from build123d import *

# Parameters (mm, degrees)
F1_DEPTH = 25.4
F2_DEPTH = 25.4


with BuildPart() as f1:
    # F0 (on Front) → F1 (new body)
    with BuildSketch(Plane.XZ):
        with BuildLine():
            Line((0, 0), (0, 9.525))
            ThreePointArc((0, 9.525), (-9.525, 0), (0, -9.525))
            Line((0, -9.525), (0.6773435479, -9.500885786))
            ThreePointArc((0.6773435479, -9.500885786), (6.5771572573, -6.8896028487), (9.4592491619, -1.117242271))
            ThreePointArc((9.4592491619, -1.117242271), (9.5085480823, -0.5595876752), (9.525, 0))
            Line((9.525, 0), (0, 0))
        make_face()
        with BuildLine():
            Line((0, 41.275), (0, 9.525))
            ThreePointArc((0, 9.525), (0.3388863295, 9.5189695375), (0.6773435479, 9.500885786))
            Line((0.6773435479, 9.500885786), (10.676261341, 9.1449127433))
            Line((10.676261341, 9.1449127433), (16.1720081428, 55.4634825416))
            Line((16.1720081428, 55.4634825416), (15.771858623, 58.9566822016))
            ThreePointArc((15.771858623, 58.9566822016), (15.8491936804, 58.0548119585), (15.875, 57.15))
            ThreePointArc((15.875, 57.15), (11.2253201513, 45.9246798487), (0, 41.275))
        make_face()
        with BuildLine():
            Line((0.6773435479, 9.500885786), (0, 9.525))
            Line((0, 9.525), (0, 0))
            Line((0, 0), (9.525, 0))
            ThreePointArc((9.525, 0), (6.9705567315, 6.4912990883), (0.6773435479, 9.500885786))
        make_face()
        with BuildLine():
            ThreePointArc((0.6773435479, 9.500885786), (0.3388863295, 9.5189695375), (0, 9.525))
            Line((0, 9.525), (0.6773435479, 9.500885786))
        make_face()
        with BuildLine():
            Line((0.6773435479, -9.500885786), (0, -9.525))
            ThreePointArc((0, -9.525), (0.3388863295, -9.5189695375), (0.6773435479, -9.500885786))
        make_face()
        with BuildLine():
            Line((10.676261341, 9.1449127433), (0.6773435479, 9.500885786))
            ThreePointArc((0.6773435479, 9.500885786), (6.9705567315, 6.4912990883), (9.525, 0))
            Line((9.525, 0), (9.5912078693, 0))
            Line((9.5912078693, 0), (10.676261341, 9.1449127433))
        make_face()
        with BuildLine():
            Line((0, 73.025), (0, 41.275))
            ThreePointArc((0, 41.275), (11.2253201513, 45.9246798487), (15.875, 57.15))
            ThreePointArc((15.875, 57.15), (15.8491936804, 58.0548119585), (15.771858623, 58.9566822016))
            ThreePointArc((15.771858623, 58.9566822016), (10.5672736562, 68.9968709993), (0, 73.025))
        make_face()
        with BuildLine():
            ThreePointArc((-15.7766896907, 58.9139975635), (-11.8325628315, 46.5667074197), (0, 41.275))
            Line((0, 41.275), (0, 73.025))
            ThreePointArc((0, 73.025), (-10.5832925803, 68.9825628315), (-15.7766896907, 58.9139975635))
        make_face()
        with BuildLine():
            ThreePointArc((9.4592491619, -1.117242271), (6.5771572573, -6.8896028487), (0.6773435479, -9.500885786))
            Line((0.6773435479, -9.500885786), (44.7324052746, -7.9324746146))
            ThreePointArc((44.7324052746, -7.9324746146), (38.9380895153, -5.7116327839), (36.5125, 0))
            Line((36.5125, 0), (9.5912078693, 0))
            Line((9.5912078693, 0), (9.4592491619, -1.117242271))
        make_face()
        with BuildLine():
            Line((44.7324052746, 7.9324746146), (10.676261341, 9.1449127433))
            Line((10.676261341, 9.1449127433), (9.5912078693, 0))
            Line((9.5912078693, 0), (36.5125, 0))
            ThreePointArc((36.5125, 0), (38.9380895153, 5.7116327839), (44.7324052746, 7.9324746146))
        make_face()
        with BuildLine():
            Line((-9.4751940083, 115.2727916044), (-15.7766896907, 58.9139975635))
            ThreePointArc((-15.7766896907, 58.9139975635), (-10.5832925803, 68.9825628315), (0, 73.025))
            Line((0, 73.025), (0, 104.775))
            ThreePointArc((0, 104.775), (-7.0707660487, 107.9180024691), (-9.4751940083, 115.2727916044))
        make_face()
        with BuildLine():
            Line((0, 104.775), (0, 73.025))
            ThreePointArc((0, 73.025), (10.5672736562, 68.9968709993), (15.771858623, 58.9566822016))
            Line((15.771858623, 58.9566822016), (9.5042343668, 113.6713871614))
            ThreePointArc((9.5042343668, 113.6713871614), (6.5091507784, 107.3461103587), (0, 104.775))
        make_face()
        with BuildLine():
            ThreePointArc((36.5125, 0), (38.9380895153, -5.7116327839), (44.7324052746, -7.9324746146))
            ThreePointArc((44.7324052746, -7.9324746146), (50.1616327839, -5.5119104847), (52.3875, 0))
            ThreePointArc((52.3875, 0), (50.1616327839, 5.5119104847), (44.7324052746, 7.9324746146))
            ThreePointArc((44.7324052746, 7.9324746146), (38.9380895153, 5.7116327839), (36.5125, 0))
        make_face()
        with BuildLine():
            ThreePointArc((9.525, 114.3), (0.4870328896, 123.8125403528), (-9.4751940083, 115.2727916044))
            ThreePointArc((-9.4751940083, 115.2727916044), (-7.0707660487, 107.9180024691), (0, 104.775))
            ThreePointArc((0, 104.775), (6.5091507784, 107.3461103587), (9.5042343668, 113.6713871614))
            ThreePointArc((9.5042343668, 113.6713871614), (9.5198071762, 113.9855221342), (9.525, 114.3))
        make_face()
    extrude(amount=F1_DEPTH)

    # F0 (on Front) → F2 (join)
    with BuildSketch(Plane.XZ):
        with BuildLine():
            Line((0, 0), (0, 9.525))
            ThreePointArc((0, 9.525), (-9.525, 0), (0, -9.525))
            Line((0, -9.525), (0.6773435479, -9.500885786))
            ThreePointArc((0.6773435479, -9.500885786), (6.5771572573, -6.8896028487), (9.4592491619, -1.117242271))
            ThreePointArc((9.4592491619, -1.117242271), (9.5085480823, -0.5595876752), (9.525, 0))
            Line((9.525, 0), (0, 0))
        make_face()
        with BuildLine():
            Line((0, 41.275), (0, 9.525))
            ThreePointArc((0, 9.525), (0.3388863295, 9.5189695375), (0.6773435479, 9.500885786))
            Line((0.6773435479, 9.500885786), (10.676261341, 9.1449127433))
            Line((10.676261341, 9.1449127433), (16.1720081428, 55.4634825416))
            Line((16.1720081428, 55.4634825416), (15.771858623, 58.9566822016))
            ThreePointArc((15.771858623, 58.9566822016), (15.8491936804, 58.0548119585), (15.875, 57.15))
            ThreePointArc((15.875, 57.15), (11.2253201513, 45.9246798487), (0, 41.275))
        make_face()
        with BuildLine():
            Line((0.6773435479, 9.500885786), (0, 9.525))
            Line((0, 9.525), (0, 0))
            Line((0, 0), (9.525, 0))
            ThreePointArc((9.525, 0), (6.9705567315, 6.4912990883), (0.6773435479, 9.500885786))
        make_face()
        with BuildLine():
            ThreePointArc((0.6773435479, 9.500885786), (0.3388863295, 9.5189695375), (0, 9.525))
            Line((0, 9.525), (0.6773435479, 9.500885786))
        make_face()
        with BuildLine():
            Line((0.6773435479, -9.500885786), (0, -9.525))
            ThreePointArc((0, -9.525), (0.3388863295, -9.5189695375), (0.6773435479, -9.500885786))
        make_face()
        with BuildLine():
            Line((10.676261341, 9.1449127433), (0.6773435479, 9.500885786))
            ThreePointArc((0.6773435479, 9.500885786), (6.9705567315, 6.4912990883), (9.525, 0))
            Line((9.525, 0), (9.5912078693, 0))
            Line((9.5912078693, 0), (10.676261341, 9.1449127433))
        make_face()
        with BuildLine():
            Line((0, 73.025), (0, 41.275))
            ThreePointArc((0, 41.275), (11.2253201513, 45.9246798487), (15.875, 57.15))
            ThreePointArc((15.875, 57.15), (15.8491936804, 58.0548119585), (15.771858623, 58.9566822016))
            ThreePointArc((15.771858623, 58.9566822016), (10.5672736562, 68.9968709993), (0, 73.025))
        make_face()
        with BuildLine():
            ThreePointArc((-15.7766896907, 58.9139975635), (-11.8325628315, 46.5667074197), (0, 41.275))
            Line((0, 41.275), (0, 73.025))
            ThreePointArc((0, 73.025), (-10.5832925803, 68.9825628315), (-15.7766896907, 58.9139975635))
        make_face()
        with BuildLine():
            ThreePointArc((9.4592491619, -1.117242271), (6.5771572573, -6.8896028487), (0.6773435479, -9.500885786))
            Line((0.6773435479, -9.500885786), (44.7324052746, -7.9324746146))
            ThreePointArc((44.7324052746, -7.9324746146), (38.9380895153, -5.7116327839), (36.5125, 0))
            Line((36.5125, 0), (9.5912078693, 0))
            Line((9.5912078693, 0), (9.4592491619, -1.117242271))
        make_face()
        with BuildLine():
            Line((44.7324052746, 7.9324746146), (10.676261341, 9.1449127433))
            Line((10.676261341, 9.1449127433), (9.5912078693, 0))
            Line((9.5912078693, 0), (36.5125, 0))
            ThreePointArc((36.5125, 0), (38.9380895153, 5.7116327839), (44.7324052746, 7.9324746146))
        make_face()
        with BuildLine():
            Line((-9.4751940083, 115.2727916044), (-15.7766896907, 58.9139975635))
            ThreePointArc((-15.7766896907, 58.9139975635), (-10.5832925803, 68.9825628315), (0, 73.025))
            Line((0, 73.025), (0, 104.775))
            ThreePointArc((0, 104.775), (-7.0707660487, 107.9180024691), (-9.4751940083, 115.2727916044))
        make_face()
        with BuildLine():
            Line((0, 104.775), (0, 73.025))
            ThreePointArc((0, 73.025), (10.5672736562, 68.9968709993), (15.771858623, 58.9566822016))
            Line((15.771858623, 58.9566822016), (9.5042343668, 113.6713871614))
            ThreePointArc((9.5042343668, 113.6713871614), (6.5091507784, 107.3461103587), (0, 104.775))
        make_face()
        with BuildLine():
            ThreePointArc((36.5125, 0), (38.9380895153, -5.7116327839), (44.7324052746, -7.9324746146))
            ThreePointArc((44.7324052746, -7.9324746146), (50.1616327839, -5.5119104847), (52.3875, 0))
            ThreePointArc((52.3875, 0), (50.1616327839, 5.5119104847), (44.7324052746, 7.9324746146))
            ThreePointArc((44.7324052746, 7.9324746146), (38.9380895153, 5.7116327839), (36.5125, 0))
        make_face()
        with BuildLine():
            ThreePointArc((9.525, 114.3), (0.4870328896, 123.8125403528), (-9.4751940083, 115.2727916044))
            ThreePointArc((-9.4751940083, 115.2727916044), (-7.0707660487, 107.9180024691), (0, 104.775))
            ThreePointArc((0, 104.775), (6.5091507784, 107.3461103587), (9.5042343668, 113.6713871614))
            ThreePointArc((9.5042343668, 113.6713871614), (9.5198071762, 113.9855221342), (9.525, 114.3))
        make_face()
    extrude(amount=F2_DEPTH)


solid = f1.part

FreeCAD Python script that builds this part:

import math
import FreeCAD as App
import Part
import Sketcher
Q = App.Units.Quantity

doc = App.newDocument("Part")
body = doc.addObject("PartDesign::Body", "Body")

# Sketch on XZ plane
sketch1 = body.newObject("Sketcher::SketchObject", "Sketch")
sketch1.AttachmentSupport = (doc.getObject("XZ_Plane"), [""])
sketch1.MapMode = "FlatFace"
sketch1.addGeometry([
    Part.LineSegment(App.Vector(44.732405, 7.932475, 0), App.Vector(10.676261, 9.144913, 0)),  # 0
    Part.LineSegment(App.Vector(10.676261, 9.144913, 0), App.Vector(16.172008, 55.463483, 0)),  # 1
    Part.LineSegment(App.Vector(16.172008, 55.463483, 0), App.Vector(15.771859, 58.956682, 0)),  # 2
    Part.LineSegment(App.Vector(15.771859, 58.956682, 0), App.Vector(9.504234, 113.671387, 0)),  # 3
    Part.ArcOfCircle(Part.Circle(App.Vector(0, 114.3, 0), App.Vector(0, 0, 1), 9.525), math.radians(-3.784048), math.radians(0)),  # 4
    Part.ArcOfCircle(Part.Circle(App.Vector(0, 114.3, 0), App.Vector(0, 0, 1), 9.525), math.radians(0), math.radians(174.138141)),  # 5
    Part.LineSegment(App.Vector(-9.475194, 115.272792, 0), App.Vector(-15.77669, 58.913998, 0)),  # 6
    Part.ArcOfCircle(Part.Circle(App.Vector(0, 57.15, 0), App.Vector(0, 0, 1), 15.875), math.radians(173.620235), math.radians(270)),  # 7
    Part.LineSegment(App.Vector(0, 41.275, 0), App.Vector(0, 9.525, 0)),  # 8
    Part.ArcOfCircle(Part.Circle(App.Vector(0, 0, 0), App.Vector(0, 0, 1), 9.525), math.radians(90), math.radians(270)),  # 9
    Part.ArcOfCircle(Part.Circle(App.Vector(0, 0, 0), App.Vector(0, 0, 1), 9.525), math.radians(-90), math.radians(-85.92213)),  # 10
    Part.LineSegment(App.Vector(0.677344, -9.500886, 0), App.Vector(44.732405, -7.932475, 0)),  # 11
    Part.ArcOfCircle(Part.Circle(App.Vector(44.45, 0, 0), App.Vector(0, 0, 1), 7.9375), math.radians(-87.961065), math.radians(0)),  # 12
    Part.ArcOfCircle(Part.Circle(App.Vector(44.45, 0, 0), App.Vector(0, 0, 1), 7.9375), math.radians(0), math.radians(87.961065)),  # 13
    Part.LineSegment(App.Vector(9.525, 0, 0), App.Vector(9.591208, 0, 0)),  # 14
    Part.LineSegment(App.Vector(9.591208, 0, 0), App.Vector(9.459249, -1.117242, 0)),  # 15
    Part.ArcOfCircle(Part.Circle(App.Vector(0, 0, 0), App.Vector(0, 0, 1), 9.525), math.radians(-6.73606), math.radians(0)),  # 16
], False)
sketch1.addConstraint([
    Sketcher.Constraint("Coincident", 0, 2, 1, 1),
    Sketcher.Constraint("Coincident", 1, 2, 2, 1),
    Sketcher.Constraint("Coincident", 2, 2, 3, 1),
    Sketcher.Constraint("Coincident", 3, 2, 4, 1),
    Sketcher.Constraint("Coincident", 4, 2, 5, 1),
    Sketcher.Constraint("Coincident", 5, 2, 6, 1),
    Sketcher.Constraint("Coincident", 6, 2, 7, 1),
    Sketcher.Constraint("Coincident", 7, 2, 8, 1),
    Sketcher.Constraint("Coincident", 8, 2, 9, 1),
    Sketcher.Constraint("Coincident", 9, 2, 10, 1),
    Sketcher.Constraint("Coincident", 10, 2, 11, 1),
    Sketcher.Constraint("Coincident", 11, 2, 12, 1),
    Sketcher.Constraint("Coincident", 12, 2, 13, 1),
    Sketcher.Constraint("Coincident", 13, 2, 0, 1),
    Sketcher.Constraint("Coincident", 14, 2, 15, 1),
    Sketcher.Constraint("Coincident", 15, 2, 16, 1),
    Sketcher.Constraint("Coincident", 16, 2, 14, 1),
    Sketcher.Constraint("Vertical", 8),
    Sketcher.Constraint("Horizontal", 14),
    Sketcher.Constraint("Coincident", 9, 3, -1, 1),
    Sketcher.Constraint("Coincident", 10, 3, -1, 1),
    Sketcher.Constraint("Coincident", 16, 3, -1, 1),
    Sketcher.Constraint("Coincident", 5, 3, 4, 3),
    Sketcher.Constraint("Coincident", 13, 3, 12, 3),
    Sketcher.Constraint("PointOnObject", 4, 3, -2),
    Sketcher.Constraint("PointOnObject", 7, 3, -2),
    Sketcher.Constraint("PointOnObject", 12, 3, -1),
    Sketcher.Constraint("PointOnObject", 7, 2, -2),
    Sketcher.Constraint("PointOnObject", 9, 2, -2),
    Sketcher.Constraint("PointOnObject", 12, 2, -1),
    Sketcher.Constraint("PointOnObject", 14, 2, -1),
    Sketcher.Constraint("Radius", 4, Q("0.375 in")),
    Sketcher.Constraint("Radius", 7, Q("0.625 in")),
    Sketcher.Constraint("Radius", 9, Q("0.375 in")),
    Sketcher.Constraint("Radius", 12, Q("0.3125 in")),
    Sketcher.Constraint("Radius", 16, Q("0.375 in")),
    Sketcher.Constraint("DistanceY", 8, 2, 8, 1, Q("1.25 in")),
    Sketcher.Constraint("DistanceY", -1, 1, 4, 3, Q("4.5 in")),
    Sketcher.Constraint("DistanceY", -1, 1, 4, 2, Q("4.5 in")),
    Sketcher.Constraint("DistanceX", -1, 1, 12, 3, Q("1.75 in")),
    Sketcher.Constraint("DistanceY", 1, 2, 2, 2, 3.4932),
    Sketcher.Constraint("Distance", 0, 34.077719),
    Sketcher.Constraint("Distance", 1, 46.643468),
    Sketcher.Constraint("Distance", 11, 44.082972),
    Sketcher.Constraint("Distance", 15, 1.125008),
    Sketcher.Constraint("DistanceX", 14, 1, 14, 2, 0.066208),
    Sketcher.Constraint("DistanceX", -1, 1, 0, 2, 10.676261),
    Sketcher.Constraint("DistanceX", -1, 1, 1, 2, 16.172008),
    Sketcher.Constraint("DistanceX", -1, 1, 2, 2, 15.771859),
    Sketcher.Constraint("DistanceY", -1, 1, 5, 2, 115.272792),
    Sketcher.Constraint("DistanceX", 6, 2, -1, 1, 15.77669),
    Sketcher.Constraint("DistanceX", 5, 2, 3, 2, 18.979428),
    Sketcher.Constraint("DistanceY", 10, 2, 11, 2, 1.568411),
    Sketcher.Constraint("DistanceY", 13, 2, 0, 2, 1.212438),
])
pad1 = body.newObject("PartDesign::Pad", "Pad")
pad1.Profile = sketch1
pad1.Length = Q("1 in")

# Sketch on XZ plane
sketch2 = body.newObject("Sketcher::SketchObject", "Sketch001")
sketch2.AttachmentSupport = (doc.getObject("XZ_Plane"), [""])
sketch2.MapMode = "FlatFace"
sketch2.addGeometry([
    Part.LineSegment(App.Vector(44.732405, 7.932475, 0), App.Vector(10.676261, 9.144913, 0)),  # 0
    Part.LineSegment(App.Vector(10.676261, 9.144913, 0), App.Vector(16.172008, 55.463483, 0)),  # 1
    Part.LineSegment(App.Vector(16.172008, 55.463483, 0), App.Vector(15.771859, 58.956682, 0)),  # 2
    Part.LineSegment(App.Vector(15.771859, 58.956682, 0), App.Vector(9.504234, 113.671387, 0)),  # 3
    Part.ArcOfCircle(Part.Circle(App.Vector(0, 114.3, 0), App.Vector(0, 0, 1), 9.525), math.radians(-3.784048), math.radians(0)),  # 4
    Part.ArcOfCircle(Part.Circle(App.Vector(0, 114.3, 0), App.Vector(0, 0, 1), 9.525), math.radians(0), math.radians(174.138141)),  # 5
    Part.LineSegment(App.Vector(-9.475194, 115.272792, 0), App.Vector(-15.77669, 58.913998, 0)),  # 6
    Part.ArcOfCircle(Part.Circle(App.Vector(0, 57.15, 0), App.Vector(0, 0, 1), 15.875), math.radians(173.620235), math.radians(270)),  # 7
    Part.LineSegment(App.Vector(0, 41.275, 0), App.Vector(0, 9.525, 0)),  # 8
    Part.ArcOfCircle(Part.Circle(App.Vector(0, 0, 0), App.Vector(0, 0, 1), 9.525), math.radians(90), math.radians(270)),  # 9
    Part.ArcOfCircle(Part.Circle(App.Vector(0, 0, 0), App.Vector(0, 0, 1), 9.525), math.radians(-90), math.radians(-85.92213)),  # 10
    Part.LineSegment(App.Vector(0.677344, -9.500886, 0), App.Vector(44.732405, -7.932475, 0)),  # 11
    Part.ArcOfCircle(Part.Circle(App.Vector(44.45, 0, 0), App.Vector(0, 0, 1), 7.9375), math.radians(-87.961065), math.radians(0)),  # 12
    Part.ArcOfCircle(Part.Circle(App.Vector(44.45, 0, 0), App.Vector(0, 0, 1), 7.9375), math.radians(0), math.radians(87.961065)),  # 13
    Part.LineSegment(App.Vector(9.525, 0, 0), App.Vector(9.591208, 0, 0)),  # 14
    Part.LineSegment(App.Vector(9.591208, 0, 0), App.Vector(9.459249, -1.117242, 0)),  # 15
    Part.ArcOfCircle(Part.Circle(App.Vector(0, 0, 0), App.Vector(0, 0, 1), 9.525), math.radians(-6.73606), math.radians(0)),  # 16
], False)
sketch2.addConstraint([
    Sketcher.Constraint("Coincident", 0, 2, 1, 1),
    Sketcher.Constraint("Coincident", 1, 2, 2, 1),
    Sketcher.Constraint("Coincident", 2, 2, 3, 1),
    Sketcher.Constraint("Coincident", 3, 2, 4, 1),
    Sketcher.Constraint("Coincident", 4, 2, 5, 1),
    Sketcher.Constraint("Coincident", 5, 2, 6, 1),
    Sketcher.Constraint("Coincident", 6, 2, 7, 1),
    Sketcher.Constraint("Coincident", 7, 2, 8, 1),
    Sketcher.Constraint("Coincident", 8, 2, 9, 1),
    Sketcher.Constraint("Coincident", 9, 2, 10, 1),
    Sketcher.Constraint("Coincident", 10, 2, 11, 1),
    Sketcher.Constraint("Coincident", 11, 2, 12, 1),
    Sketcher.Constraint("Coincident", 12, 2, 13, 1),
    Sketcher.Constraint("Coincident", 13, 2, 0, 1),
    Sketcher.Constraint("Coincident", 14, 2, 15, 1),
    Sketcher.Constraint("Coincident", 15, 2, 16, 1),
    Sketcher.Constraint("Coincident", 16, 2, 14, 1),
    Sketcher.Constraint("Vertical", 8),
    Sketcher.Constraint("Horizontal", 14),
    Sketcher.Constraint("Coincident", 9, 3, -1, 1),
    Sketcher.Constraint("Coincident", 10, 3, -1, 1),
    Sketcher.Constraint("Coincident", 16, 3, -1, 1),
    Sketcher.Constraint("Coincident", 5, 3, 4, 3),
    Sketcher.Constraint("Coincident", 13, 3, 12, 3),
    Sketcher.Constraint("PointOnObject", 4, 3, -2),
    Sketcher.Constraint("PointOnObject", 7, 3, -2),
    Sketcher.Constraint("PointOnObject", 12, 3, -1),
    Sketcher.Constraint("PointOnObject", 7, 2, -2),
    Sketcher.Constraint("PointOnObject", 9, 2, -2),
    Sketcher.Constraint("PointOnObject", 12, 2, -1),
    Sketcher.Constraint("PointOnObject", 14, 2, -1),
    Sketcher.Constraint("Radius", 4, Q("0.375 in")),
    Sketcher.Constraint("Radius", 7, Q("0.625 in")),
    Sketcher.Constraint("Radius", 9, Q("0.375 in")),
    Sketcher.Constraint("Radius", 12, Q("0.3125 in")),
    Sketcher.Constraint("Radius", 16, Q("0.375 in")),
    Sketcher.Constraint("DistanceY", 8, 2, 8, 1, Q("1.25 in")),
    Sketcher.Constraint("DistanceY", -1, 1, 4, 3, Q("4.5 in")),
    Sketcher.Constraint("DistanceY", -1, 1, 4, 2, Q("4.5 in")),
    Sketcher.Constraint("DistanceX", -1, 1, 12, 3, Q("1.75 in")),
    Sketcher.Constraint("DistanceY", 1, 2, 2, 2, 3.4932),
    Sketcher.Constraint("Distance", 0, 34.077719),
    Sketcher.Constraint("Distance", 1, 46.643468),
    Sketcher.Constraint("Distance", 11, 44.082972),
    Sketcher.Constraint("Distance", 15, 1.125008),
    Sketcher.Constraint("DistanceX", 14, 1, 14, 2, 0.066208),
    Sketcher.Constraint("DistanceX", -1, 1, 0, 2, 10.676261),
    Sketcher.Constraint("DistanceX", -1, 1, 1, 2, 16.172008),
    Sketcher.Constraint("DistanceX", -1, 1, 2, 2, 15.771859),
    Sketcher.Constraint("DistanceY", -1, 1, 5, 2, 115.272792),
    Sketcher.Constraint("DistanceX", 6, 2, -1, 1, 15.77669),
    Sketcher.Constraint("DistanceX", 5, 2, 3, 2, 18.979428),
    Sketcher.Constraint("DistanceY", 10, 2, 11, 2, 1.568411),
    Sketcher.Constraint("DistanceY", 13, 2, 0, 2, 1.212438),
])
pad2 = body.newObject("PartDesign::Pad", "Pad001")
pad2.Profile = sketch2
pad2.Length = Q("1 in")

doc.recompute()
